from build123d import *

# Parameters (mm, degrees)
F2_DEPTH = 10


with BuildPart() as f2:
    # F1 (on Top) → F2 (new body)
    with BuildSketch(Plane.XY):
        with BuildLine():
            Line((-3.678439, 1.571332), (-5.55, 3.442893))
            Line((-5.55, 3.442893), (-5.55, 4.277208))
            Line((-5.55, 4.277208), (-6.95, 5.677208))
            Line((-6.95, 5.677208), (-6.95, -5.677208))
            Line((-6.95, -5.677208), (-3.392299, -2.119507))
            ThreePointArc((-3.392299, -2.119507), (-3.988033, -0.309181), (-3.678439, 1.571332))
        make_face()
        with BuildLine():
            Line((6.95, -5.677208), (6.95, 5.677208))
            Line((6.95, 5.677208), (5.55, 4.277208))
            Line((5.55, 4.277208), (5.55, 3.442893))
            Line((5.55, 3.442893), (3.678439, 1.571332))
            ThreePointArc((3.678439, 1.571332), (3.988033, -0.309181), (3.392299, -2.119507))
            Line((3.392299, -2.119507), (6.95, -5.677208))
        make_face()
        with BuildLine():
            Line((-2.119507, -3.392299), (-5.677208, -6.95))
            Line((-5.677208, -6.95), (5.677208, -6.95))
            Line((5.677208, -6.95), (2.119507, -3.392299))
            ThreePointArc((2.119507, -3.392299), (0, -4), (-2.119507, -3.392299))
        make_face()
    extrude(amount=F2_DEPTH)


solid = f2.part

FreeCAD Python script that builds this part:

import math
import FreeCAD as App
import Part
import Sketcher
from FreeCAD import Vector
Q = App.Units.Quantity

doc = App.newDocument("Part")
body = doc.addObject("PartDesign::Body", "Body")
body.AllowCompound = True

# Sketch on XY plane
sketch1 = doc.addObject("Sketcher::SketchObject", "Sketch")
body.addObject(sketch1)
sketch1.AttachmentSupport = (doc.XY_Plane, [""])
sketch1.MapMode = "FlatFace"
sketch1.addGeometry([
    Part.LineSegment(Vector(-3.7, 1.6, 0), Vector(-5.5, 3.4, 0)),  # 0
    Part.LineSegment(Vector(-5.5, 3.4, 0), Vector(-5.5, 4.3, 0)),  # 1
    Part.LineSegment(Vector(-5.5, 4.3, 0), Vector(-7, 5.7, 0)),  # 2
    Part.LineSegment(Vector(-7, 5.7, 0), Vector(-7, -5.7, 0)),  # 3
    Part.LineSegment(Vector(-7, -5.7, 0), Vector(-3.4, -2.1, 0)),  # 4
    Part.ArcOfCircle(Part.Circle(Vector(0, 0, 0), Vector(0, 0, 1), 4), math.radians(157), math.radians(212)),  # 5
    Part.LineSegment(Vector(7, -5.7, 0), Vector(7, 5.7, 0)),  # 6
    Part.LineSegment(Vector(7, 5.7, 0), Vector(5.5, 4.3, 0)),  # 7
    Part.LineSegment(Vector(5.5, 4.3, 0), Vector(5.5, 3.4, 0)),  # 8
    Part.LineSegment(Vector(5.5, 3.4, 0), Vector(3.7, 1.6, 0)),  # 9
    Part.ArcOfCircle(Part.Circle(Vector(0, 0, 0), Vector(0, 0, 1), 4), math.radians(-32), math.radians(23)),  # 10
    Part.LineSegment(Vector(3.4, -2.1, 0), Vector(7, -5.7, 0)),  # 11
    Part.LineSegment(Vector(-2.1, -3.4, 0), Vector(-5.7, -7, 0)),  # 12
    Part.LineSegment(Vector(-5.7, -7, 0), Vector(5.7, -7, 0)),  # 13
    Part.LineSegment(Vector(5.7, -7, 0), Vector(2.1, -3.4, 0)),  # 14
    Part.ArcOfCircle(Part.Circle(Vector(0, 0, 0), Vector(0, 0, 1), 4), math.radians(-122), math.radians(-58)),  # 15
], False)
sketch1.addConstraint([
    Sketcher.Constraint("Coincident", 0, 2, 1, 1),
    Sketcher.Constraint("Coincident", 1, 2, 2, 1),
    Sketcher.Constraint("Coincident", 2, 2, 3, 1),
    Sketcher.Constraint("Coincident", 3, 2, 4, 1),
    Sketcher.Constraint("Coincident", 4, 2, 5, 2),
    Sketcher.Constraint("Coincident", 5, 1, 0, 1),
    Sketcher.Constraint("Coincident", 6, 2, 7, 1),
    Sketcher.Constraint("Coincident", 7, 2, 8, 1),
    Sketcher.Constraint("Coincident", 8, 2, 9, 1),
    Sketcher.Constraint("Coincident", 9, 2, 10, 2),
    Sketcher.Constraint("Coincident", 10, 1, 11, 1),
    Sketcher.Constraint("Coincident", 11, 2, 6, 1),
    Sketcher.Constraint("Coincident", 12, 2, 13, 1),
    Sketcher.Constraint("Coincident", 13, 2, 14, 1),
    Sketcher.Constraint("Coincident", 14, 2, 15, 2),
    Sketcher.Constraint("Coincident", 15, 1, 12, 1),
    Sketcher.Constraint("Vertical", 1),
    Sketcher.Constraint("Vertical", 3),
    Sketcher.Constraint("Vertical", 6),
    Sketcher.Constraint("Vertical", 8),
    Sketcher.Constraint("Horizontal", 13),
    Sketcher.Constraint("Coincident", 5, 3, -1, 1),
    Sketcher.Constraint("Coincident", 10, 3, -1, 1),
    Sketcher.Constraint("Coincident", 15, 3, -1, 1),
    Sketcher.Constraint("Equal", 5, 10),
    Sketcher.Constraint("Symmetric", 3, 2, 6, 2, -1, 1),
    Sketcher.Constraint("Symmetric", 1, 2, 7, 2, -2),
    Sketcher.Constraint("Parallel", 0, 2),
    Sketcher.Constraint("Perpendicular", 2, 4),
    Sketcher.Constraint("Parallel", 4, 7),
    Sketcher.Constraint("Parallel", 7, 9),
    Sketcher.Constraint("Perpendicular", 9, 11),
    Sketcher.Constraint("Perpendicular", 11, 12),
    Sketcher.Constraint("Perpendicular", 12, 14),
    Sketcher.Constraint("Horizontal", 2, 2, 6, 2),
    Sketcher.Constraint("Horizontal", 0, 2, 8, 2),
    Sketcher.Constraint("Horizontal", 4, 2, 10, 1),
    Sketcher.Constraint("Horizontal", 14, 2, 15, 1),
    Sketcher.Constraint("Equal", 13, 3),
    Sketcher.Constraint("Equal", 11, 12),
    Sketcher.Constraint("Radius", 5, Q("4 mm")),
    Sketcher.Constraint("Radius", 15, Q("4.000002 mm")),
    Sketcher.Constraint("DistanceX", 2, 2, 1, 2, Q("1.4 mm")),
    Sketcher.Constraint("DistanceX", 1, 2, 6, 2, Q("12.5 mm")),
    Sketcher.Constraint("DistanceX", 4, 2, -1, 1, Q("3.392299 mm")),
    Sketcher.Constraint("DistanceY", 3, 2, 0, 2, Q("9.120101 mm")),
])
pad1 = doc.addObject("PartDesign::Pad", "Pad")
body.addObject(pad1)
pad1.Profile = sketch1
pad1.Length = 10

doc.recompute()
